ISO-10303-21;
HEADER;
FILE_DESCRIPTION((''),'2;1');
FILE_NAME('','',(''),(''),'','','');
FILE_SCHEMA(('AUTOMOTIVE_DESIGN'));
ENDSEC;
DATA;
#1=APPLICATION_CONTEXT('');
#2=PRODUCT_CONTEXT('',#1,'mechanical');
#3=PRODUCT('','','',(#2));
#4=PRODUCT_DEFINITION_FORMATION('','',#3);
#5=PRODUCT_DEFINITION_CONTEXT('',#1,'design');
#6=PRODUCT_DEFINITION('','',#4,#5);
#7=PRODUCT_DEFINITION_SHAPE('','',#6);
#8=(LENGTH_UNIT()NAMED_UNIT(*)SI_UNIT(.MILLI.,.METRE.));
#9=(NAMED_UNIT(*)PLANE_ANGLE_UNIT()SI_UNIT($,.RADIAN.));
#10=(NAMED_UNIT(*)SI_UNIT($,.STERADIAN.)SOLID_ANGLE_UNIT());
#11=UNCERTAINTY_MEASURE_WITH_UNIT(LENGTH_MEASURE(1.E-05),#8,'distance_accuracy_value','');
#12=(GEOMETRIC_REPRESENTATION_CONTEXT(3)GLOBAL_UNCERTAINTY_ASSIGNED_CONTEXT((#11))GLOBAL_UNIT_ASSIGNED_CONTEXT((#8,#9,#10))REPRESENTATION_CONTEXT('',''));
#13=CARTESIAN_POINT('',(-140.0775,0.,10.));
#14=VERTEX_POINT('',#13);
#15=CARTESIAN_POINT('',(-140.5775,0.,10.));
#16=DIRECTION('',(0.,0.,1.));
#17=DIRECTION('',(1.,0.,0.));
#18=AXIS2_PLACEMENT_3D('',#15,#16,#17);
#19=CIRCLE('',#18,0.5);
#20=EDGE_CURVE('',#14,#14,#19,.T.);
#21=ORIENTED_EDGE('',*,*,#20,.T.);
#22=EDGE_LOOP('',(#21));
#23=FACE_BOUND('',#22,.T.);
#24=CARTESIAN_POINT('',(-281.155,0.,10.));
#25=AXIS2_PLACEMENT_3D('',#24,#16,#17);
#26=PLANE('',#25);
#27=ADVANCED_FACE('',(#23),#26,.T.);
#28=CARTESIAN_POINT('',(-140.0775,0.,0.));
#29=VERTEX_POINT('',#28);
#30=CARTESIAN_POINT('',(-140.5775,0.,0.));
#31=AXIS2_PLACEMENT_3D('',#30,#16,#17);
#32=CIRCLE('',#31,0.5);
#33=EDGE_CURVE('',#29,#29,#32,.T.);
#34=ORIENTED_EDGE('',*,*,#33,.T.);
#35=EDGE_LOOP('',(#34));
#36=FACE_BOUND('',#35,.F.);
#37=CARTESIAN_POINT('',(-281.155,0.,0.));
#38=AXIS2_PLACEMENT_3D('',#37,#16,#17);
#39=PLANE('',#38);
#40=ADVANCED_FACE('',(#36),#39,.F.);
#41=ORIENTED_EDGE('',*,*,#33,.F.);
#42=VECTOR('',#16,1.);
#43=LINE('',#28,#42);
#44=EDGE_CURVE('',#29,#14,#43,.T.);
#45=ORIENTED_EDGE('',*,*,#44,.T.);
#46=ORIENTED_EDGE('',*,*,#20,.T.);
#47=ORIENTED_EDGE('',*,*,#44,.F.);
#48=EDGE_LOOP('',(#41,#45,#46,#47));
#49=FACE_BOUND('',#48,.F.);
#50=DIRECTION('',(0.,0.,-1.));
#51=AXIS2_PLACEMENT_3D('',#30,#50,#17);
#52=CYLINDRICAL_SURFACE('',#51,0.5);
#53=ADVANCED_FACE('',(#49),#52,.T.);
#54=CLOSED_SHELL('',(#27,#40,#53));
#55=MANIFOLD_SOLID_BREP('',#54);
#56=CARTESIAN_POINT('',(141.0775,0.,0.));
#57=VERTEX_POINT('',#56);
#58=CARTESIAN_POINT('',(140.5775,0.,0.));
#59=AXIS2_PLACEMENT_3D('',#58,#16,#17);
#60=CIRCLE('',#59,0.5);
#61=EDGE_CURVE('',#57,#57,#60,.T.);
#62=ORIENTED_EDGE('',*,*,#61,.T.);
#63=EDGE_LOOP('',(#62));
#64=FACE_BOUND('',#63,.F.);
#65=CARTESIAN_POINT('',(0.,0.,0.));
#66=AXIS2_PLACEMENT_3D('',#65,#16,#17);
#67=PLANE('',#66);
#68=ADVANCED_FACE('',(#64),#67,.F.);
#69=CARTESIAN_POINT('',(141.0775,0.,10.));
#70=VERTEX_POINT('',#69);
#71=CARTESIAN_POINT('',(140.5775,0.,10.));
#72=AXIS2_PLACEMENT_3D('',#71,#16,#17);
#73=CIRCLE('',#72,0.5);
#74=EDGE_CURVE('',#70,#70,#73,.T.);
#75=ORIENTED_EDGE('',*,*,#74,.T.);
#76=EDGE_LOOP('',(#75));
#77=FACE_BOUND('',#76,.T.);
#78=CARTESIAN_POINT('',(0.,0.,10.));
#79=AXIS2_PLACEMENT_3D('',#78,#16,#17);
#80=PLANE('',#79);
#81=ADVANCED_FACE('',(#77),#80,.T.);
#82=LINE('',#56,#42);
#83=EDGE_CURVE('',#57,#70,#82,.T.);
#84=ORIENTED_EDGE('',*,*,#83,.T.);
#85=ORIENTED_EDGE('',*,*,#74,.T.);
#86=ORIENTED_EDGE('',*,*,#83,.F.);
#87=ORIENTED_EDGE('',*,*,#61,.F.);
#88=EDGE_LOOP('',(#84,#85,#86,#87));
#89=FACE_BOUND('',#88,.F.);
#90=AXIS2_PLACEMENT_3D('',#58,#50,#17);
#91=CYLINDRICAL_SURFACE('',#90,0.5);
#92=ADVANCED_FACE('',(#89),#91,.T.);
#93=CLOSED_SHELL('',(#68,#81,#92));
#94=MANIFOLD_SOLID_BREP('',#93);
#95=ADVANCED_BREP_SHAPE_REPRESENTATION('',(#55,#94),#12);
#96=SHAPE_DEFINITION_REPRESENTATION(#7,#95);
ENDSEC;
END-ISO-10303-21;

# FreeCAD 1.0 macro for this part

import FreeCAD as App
import Part
import Sketcher

V = App.Vector

doc = App.newDocument("Part")
body = doc.addObject("PartDesign::Body", "Body")
body.AllowCompound = True

sketch1 = body.newObject("Sketcher::SketchObject", "Sketch")
sketch1.AttachmentSupport = (doc.getObject("XY_Plane"), [""])
sketch1.MapMode = "FlatFace"
sketch1.addGeometry(Part.Circle(V(140.5775, 0, 0), V(0, 0, 1), 0.5), False)
sketch1.addConstraint(Sketcher.Constraint("PointOnObject", 0, 3, -1))
sketch1.addConstraint(Sketcher.Constraint("Diameter", 0, 1.0))
sketch1.addConstraint(Sketcher.Constraint("DistanceX", -1, 1, 0, 3, 140.5775))
pad1 = body.newObject("PartDesign::Pad", "Pad")
pad1.Profile = sketch1
pad1.Length = 10
doc.recompute()

linearpattern = body.newObject("PartDesign::LinearPattern", "LinearPattern")
linearpattern.Originals = [pad1]
linearpattern.Direction = (doc.getObject("X_Axis"), [""])
linearpattern.Mode = "offset"
linearpattern.Offset = 281.155
linearpattern.Occurrences = 2
linearpattern.Reversed = True
body.Tip = linearpattern

doc.recompute()
